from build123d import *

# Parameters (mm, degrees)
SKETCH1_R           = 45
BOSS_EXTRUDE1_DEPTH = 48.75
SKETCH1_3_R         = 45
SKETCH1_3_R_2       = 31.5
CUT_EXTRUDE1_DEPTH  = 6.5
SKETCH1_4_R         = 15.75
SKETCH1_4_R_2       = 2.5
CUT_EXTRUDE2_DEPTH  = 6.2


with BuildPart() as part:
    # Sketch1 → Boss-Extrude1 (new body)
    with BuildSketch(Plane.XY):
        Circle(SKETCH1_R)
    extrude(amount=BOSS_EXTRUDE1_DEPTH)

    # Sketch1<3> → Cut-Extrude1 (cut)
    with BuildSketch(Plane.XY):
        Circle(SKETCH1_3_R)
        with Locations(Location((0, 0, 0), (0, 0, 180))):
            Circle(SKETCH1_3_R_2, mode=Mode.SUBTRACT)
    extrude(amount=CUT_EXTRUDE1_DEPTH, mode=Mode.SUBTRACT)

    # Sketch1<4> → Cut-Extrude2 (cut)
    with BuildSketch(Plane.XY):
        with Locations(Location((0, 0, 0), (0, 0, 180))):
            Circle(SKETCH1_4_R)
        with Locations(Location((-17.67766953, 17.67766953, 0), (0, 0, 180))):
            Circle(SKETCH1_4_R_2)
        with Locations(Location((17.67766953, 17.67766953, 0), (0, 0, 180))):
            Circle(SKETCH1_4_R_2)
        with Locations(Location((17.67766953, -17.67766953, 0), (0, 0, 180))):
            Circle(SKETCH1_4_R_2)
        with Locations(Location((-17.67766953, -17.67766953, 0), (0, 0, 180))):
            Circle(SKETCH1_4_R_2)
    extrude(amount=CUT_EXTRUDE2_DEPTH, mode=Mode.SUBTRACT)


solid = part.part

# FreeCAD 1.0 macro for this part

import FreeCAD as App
import Part
import Sketcher
Q = App.Units.Quantity

doc = App.newDocument("Part")
body = doc.addObject("PartDesign::Body", "Body")

sketch1 = body.newObject("Sketcher::SketchObject", "Sketch")
sketch1.AttachmentSupport = (doc.getObject("XY_Plane"), [""])
sketch1.MapMode = "FlatFace"
sketch1.addGeometry(Part.Circle(App.Vector(0, 0, 0), App.Vector(0, 0, 1), 45), False)
sketch1.addConstraint([
    Sketcher.Constraint("Coincident", 0, 3, -1, 1),
    Sketcher.Constraint("Diameter", 0, Q("90 mm")),
])
pad1 = body.newObject("PartDesign::Pad", "Pad")
pad1.Profile = sketch1
pad1.Length = 48.75

sketch2 = body.newObject("Sketcher::SketchObject", "Sketch001")
sketch2.AttachmentSupport = (doc.getObject("XY_Plane"), [""])
sketch2.MapMode = "FlatFace"
sketch2.addGeometry([
    Part.Circle(App.Vector(0, 0, 0), App.Vector(0, 0, 1), 45),
    Part.Circle(App.Vector(0, 0, 0), App.Vector(0, 0, 1), 32),
], False)
sketch2.addConstraint([
    Sketcher.Constraint("Coincident", 0, 3, -1, 1),
    Sketcher.Constraint("Coincident", 1, 3, -1, 1),
    Sketcher.Constraint("Diameter", 0, Q("90 mm")),
    Sketcher.Constraint("Diameter", 1, Q("63 mm")),
])
pocket1 = body.newObject("PartDesign::Pocket", "Pocket")
pocket1.Profile = sketch2
pocket1.Length = 6.5
pocket1.Reversed = True

sketch3 = body.newObject("Sketcher::SketchObject", "Sketch002")
sketch3.AttachmentSupport = (doc.getObject("XY_Plane"), [""])
sketch3.MapMode = "FlatFace"
sketch3.addGeometry([
    Part.Circle(App.Vector(0, 0, 0), App.Vector(0, 0, 1), 15.8),
    Part.Circle(App.Vector(-17.7, 17.7, 0), App.Vector(0, 0, 1), 2.5),
    Part.Circle(App.Vector(17.7, 17.7, 0), App.Vector(0, 0, 1), 2.5),
    Part.Circle(App.Vector(17.7, -17.7, 0), App.Vector(0, 0, 1), 2.5),
    Part.Circle(App.Vector(-17.7, -17.7, 0), App.Vector(0, 0, 1), 2.5),
], False)
sketch3.addConstraint([
    Sketcher.Constraint("Coincident", 0, 3, -1, 1),
    Sketcher.Constraint("Equal", 1, 2),
    Sketcher.Constraint("Equal", 2, 3),
    Sketcher.Constraint("Equal", 3, 4),
    Sketcher.Constraint("Symmetric", 1, 3, 3, 3, -1, 1),
    Sketcher.Constraint("Symmetric", 2, 3, 4, 3, -1, 1),
    Sketcher.Constraint("Symmetric", 1, 3, 2, 3, -2),
    Sketcher.Constraint("Diameter", 1, Q("5 mm")),
    Sketcher.Constraint("Diameter", 0, Q("31.5 mm")),
    Sketcher.Constraint("DistanceX", 1, 3, -1, 1, Q("17.67767 mm")),
    Sketcher.Constraint("DistanceY", -1, 1, 1, 3, Q("17.67767 mm")),
])
pocket2 = body.newObject("PartDesign::Pocket", "Pocket001")
pocket2.Profile = sketch3
pocket2.Length = 6.2
pocket2.Reversed = True

doc.recompute()
